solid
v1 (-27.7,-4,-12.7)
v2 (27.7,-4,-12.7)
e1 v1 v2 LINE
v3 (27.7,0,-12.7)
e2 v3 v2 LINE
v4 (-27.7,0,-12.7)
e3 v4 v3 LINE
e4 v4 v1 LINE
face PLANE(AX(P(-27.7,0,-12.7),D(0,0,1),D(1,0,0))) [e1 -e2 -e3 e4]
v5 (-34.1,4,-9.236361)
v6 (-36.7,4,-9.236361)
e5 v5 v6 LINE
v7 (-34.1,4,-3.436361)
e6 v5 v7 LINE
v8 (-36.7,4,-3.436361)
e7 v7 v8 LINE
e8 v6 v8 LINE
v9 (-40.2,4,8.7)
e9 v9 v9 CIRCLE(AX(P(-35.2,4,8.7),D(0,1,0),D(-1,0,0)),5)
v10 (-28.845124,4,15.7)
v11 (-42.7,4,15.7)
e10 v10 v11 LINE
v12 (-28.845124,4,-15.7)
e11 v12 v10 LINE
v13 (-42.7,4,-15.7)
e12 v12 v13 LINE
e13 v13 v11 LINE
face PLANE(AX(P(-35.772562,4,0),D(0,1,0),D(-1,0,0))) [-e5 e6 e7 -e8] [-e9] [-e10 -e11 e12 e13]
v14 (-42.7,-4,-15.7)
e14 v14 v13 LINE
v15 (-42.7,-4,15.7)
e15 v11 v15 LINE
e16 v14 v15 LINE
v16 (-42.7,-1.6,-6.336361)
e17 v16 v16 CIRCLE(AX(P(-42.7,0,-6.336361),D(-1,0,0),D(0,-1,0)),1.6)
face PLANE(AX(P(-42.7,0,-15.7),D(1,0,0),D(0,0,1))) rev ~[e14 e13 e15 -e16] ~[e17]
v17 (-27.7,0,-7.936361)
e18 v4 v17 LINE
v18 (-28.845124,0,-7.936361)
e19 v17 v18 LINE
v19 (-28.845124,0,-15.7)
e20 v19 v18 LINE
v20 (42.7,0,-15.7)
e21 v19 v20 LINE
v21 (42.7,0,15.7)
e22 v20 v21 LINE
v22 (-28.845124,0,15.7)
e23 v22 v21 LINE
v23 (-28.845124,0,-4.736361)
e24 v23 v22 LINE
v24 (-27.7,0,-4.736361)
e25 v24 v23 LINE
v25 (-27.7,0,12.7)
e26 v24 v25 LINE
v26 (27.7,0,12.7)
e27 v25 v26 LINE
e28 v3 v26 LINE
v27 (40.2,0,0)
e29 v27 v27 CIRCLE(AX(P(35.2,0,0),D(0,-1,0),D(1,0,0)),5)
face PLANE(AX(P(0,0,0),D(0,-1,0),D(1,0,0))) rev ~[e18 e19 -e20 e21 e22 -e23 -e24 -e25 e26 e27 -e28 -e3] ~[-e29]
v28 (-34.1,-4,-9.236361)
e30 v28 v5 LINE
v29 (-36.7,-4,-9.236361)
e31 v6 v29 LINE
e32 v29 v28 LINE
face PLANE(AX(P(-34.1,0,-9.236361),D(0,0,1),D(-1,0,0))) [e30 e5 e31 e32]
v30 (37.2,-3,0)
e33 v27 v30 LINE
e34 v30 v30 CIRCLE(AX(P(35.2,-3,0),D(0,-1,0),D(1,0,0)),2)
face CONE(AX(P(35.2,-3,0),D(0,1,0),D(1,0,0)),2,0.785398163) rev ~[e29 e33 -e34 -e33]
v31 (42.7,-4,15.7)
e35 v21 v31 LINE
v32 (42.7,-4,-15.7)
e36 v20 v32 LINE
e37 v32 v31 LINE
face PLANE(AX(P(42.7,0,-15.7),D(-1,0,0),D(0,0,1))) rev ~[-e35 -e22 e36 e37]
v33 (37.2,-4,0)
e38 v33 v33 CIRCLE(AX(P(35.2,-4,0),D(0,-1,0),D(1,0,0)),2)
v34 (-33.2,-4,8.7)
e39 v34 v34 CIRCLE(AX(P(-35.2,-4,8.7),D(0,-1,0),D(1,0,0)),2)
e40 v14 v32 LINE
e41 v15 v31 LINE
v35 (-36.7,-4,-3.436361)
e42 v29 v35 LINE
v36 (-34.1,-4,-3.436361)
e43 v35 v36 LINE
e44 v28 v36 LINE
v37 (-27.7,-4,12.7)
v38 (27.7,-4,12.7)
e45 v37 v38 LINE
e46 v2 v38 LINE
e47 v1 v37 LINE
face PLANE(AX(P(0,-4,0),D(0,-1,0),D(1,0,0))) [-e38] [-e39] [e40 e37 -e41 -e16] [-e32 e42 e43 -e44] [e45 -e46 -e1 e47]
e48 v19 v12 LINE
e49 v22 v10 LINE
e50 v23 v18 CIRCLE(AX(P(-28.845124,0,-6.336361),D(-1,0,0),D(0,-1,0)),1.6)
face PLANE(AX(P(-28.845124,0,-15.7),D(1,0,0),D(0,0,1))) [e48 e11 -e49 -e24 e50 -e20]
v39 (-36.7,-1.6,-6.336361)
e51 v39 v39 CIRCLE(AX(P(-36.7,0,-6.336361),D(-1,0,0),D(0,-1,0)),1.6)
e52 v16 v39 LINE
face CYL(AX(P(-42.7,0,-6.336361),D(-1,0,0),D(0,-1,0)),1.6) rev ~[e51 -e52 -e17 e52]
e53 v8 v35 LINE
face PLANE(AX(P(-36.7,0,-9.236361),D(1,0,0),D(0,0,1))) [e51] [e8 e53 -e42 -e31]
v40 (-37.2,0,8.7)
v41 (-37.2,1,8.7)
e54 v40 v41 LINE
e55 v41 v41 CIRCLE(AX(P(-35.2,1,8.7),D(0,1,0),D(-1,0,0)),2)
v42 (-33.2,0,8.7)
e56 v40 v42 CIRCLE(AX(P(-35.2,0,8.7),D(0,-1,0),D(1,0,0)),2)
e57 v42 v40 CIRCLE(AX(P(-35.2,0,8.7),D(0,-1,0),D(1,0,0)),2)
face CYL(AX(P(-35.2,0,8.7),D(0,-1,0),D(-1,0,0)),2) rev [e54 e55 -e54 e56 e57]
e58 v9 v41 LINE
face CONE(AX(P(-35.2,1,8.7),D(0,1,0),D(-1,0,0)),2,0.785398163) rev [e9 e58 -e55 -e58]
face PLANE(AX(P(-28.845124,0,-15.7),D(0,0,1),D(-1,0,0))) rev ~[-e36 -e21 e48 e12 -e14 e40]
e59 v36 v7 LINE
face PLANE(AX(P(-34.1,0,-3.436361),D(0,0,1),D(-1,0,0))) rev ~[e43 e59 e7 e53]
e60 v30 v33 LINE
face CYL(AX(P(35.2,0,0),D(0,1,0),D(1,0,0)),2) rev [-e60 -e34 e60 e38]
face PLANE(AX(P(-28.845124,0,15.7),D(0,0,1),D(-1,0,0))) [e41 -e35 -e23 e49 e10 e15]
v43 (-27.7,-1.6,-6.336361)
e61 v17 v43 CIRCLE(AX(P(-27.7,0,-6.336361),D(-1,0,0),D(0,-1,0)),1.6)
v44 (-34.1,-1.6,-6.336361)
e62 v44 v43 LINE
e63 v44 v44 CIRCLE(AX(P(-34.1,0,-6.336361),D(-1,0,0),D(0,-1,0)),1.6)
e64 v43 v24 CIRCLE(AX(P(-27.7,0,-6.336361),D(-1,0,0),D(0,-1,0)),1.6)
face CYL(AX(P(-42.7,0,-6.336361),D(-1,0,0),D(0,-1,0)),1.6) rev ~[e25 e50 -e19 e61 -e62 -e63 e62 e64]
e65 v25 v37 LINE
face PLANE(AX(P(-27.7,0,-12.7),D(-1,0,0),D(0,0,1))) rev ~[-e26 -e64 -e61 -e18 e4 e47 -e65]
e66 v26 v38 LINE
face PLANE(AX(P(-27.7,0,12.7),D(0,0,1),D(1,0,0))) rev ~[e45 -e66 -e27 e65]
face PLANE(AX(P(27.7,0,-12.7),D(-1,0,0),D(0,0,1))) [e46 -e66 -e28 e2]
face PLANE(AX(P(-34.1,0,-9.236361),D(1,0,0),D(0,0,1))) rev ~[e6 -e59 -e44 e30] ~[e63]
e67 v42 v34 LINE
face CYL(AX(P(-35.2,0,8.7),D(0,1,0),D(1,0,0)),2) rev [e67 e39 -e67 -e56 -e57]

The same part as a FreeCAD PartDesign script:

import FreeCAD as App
import Part
import Sketcher

V = App.Vector
Q = App.Units.Quantity


def edges_at(feature, points):
    """Names of the edges that pass closest to the given points."""
    edges = feature.Shape.Edges
    near = lambda p: min(range(len(edges)), key=lambda i: edges[i].distToShape(Part.Vertex(*p))[0])
    return sorted({f"Edge{near(p) + 1}" for p in points})

doc = App.newDocument("Part")
body = doc.addObject("PartDesign::Body", "Body")

sketch1 = body.newObject("Sketcher::SketchObject", "Sketch")
sketch1.AttachmentSupport = (doc.getObject("XZ_Plane"), [""])
sketch1.MapMode = "FlatFace"
sketch1.addGeometry(Part.LineSegment(V(-42.7, 15.7, 0), V(-42.7, -15.7, 0)), False)
sketch1.addGeometry(Part.LineSegment(V(-42.7, -15.7, 0), V(42.7, -15.7, 0)), False)
sketch1.addGeometry(Part.LineSegment(V(42.7, -15.7, 0), V(42.7, 15.7, 0)), False)
sketch1.addGeometry(Part.LineSegment(V(42.7, 15.7, 0), V(-42.7, 15.7, 0)), False)
sketch1.addGeometry(Part.LineSegment(V(-34.1, -9.2, 0), V(-36.7, -9.2, 0)), False)
sketch1.addGeometry(Part.LineSegment(V(-36.7, -9.2, 0), V(-36.7, -3.4, 0)), False)
sketch1.addGeometry(Part.LineSegment(V(-36.7, -3.4, 0), V(-34.1, -3.4, 0)), False)
sketch1.addGeometry(Part.LineSegment(V(-34.1, -3.4, 0), V(-34.1, -9.2, 0)), False)
sketch1.addGeometry(Part.LineSegment(V(27.7, -12.7, 0), V(-27.7, -12.7, 0)), False)
sketch1.addGeometry(Part.LineSegment(V(-27.7, -12.7, 0), V(-27.7, 12.7, 0)), False)
sketch1.addGeometry(Part.LineSegment(V(-27.7, 12.7, 0), V(27.7, 12.7, 0)), False)
sketch1.addGeometry(Part.LineSegment(V(27.7, 12.7, 0), V(27.7, -12.7, 0)), False)
sketch1.addGeometry(Part.Circle(V(35.2, 0, 0), V(0, 0, 1), 2), False)
sketch1.addGeometry(Part.Circle(V(-35.2, 8.7, 0), V(0, 0, 1), 2), False)
sketch1.addConstraint(Sketcher.Constraint("Coincident", 0, 2, 1, 1))
sketch1.addConstraint(Sketcher.Constraint("Coincident", 1, 2, 2, 1))
sketch1.addConstraint(Sketcher.Constraint("Coincident", 2, 2, 3, 1))
sketch1.addConstraint(Sketcher.Constraint("Coincident", 3, 2, 0, 1))
sketch1.addConstraint(Sketcher.Constraint("Coincident", 4, 2, 5, 1))
sketch1.addConstraint(Sketcher.Constraint("Coincident", 5, 2, 6, 1))
sketch1.addConstraint(Sketcher.Constraint("Coincident", 6, 2, 7, 1))
sketch1.addConstraint(Sketcher.Constraint("Coincident", 7, 2, 4, 1))
sketch1.addConstraint(Sketcher.Constraint("Coincident", 8, 2, 9, 1))
sketch1.addConstraint(Sketcher.Constraint("Coincident", 9, 2, 10, 1))
sketch1.addConstraint(Sketcher.Constraint("Coincident", 10, 2, 11, 1))
sketch1.addConstraint(Sketcher.Constraint("Coincident", 11, 2, 8, 1))
sketch1.addConstraint(Sketcher.Constraint("Vertical", 0))
sketch1.addConstraint(Sketcher.Constraint("Horizontal", 1))
sketch1.addConstraint(Sketcher.Constraint("Vertical", 2))
sketch1.addConstraint(Sketcher.Constraint("Horizontal", 3))
sketch1.addConstraint(Sketcher.Constraint("Horizontal", 4))
sketch1.addConstraint(Sketcher.Constraint("Vertical", 5))
sketch1.addConstraint(Sketcher.Constraint("Horizontal", 6))
sketch1.addConstraint(Sketcher.Constraint("Vertical", 7))
sketch1.addConstraint(Sketcher.Constraint("Horizontal", 8))
sketch1.addConstraint(Sketcher.Constraint("Vertical", 9))
sketch1.addConstraint(Sketcher.Constraint("Horizontal", 10))
sketch1.addConstraint(Sketcher.Constraint("Vertical", 11))
sketch1.addConstraint(Sketcher.Constraint("Equal", 12, 13))
sketch1.addConstraint(Sketcher.Constraint("Symmetric", 0, 2, 2, 2, -1, 1))
sketch1.addConstraint(Sketcher.Constraint("Symmetric", 8, 2, 10, 2, -1, 1))
sketch1.addConstraint(Sketcher.Constraint("PointOnObject", 12, 3, -1))
sketch1.addConstraint(Sketcher.Constraint("Diameter", 12, Q("4 mm")))
sketch1.addConstraint(Sketcher.Constraint("DistanceX", 1, 1, 1, 2, Q("85.4 mm")))
sketch1.addConstraint(Sketcher.Constraint("DistanceX", 4, 2, 4, 1, Q("2.6 mm")))
sketch1.addConstraint(Sketcher.Constraint("DistanceX", 8, 2, 8, 1, Q("55.4 mm")))
sketch1.addConstraint(Sketcher.Constraint("DistanceY", 0, 2, 0, 1, Q("31.4 mm")))
sketch1.addConstraint(Sketcher.Constraint("DistanceY", 5, 1, 5, 2, Q("5.8 mm")))
sketch1.addConstraint(Sketcher.Constraint("DistanceY", 9, 1, 9, 2, Q("25.4 mm")))
sketch1.addConstraint(Sketcher.Constraint("DistanceY", 13, 3, 2, 2, Q("7 mm")))
sketch1.addConstraint(Sketcher.Constraint("DistanceX", 0, 2, 4, 2, Q("6 mm")))
sketch1.addConstraint(Sketcher.Constraint("DistanceX", -1, 1, 12, 3, Q("35.2 mm")))
sketch1.addConstraint(Sketcher.Constraint("DistanceX", 13, 3, -1, 1, Q("35.2 mm")))
sketch1.addConstraint(Sketcher.Constraint("DistanceY", 4, 2, -1, 1, Q("9.236361 mm")))
pad1 = body.newObject("PartDesign::Pad", "Pad")
pad1.Profile = sketch1
pad1.Length = 4

sketch2 = body.newObject("Sketcher::SketchObject", "Sketch001")
sketch2.AttachmentSupport = (doc.getObject("XZ_Plane"), [""])
sketch2.MapMode = "FlatFace"
sketch2.addGeometry(Part.LineSegment(V(-28.8, 15.7, 0), V(-28.8, -15.7, 0)), False)
sketch2.addGeometry(Part.LineSegment(V(-28.8, -15.7, 0), V(-42.7, -15.7, 0)), False)
sketch2.addGeometry(Part.LineSegment(V(-42.7, -15.7, 0), V(-42.7, 15.7, 0)), False)
sketch2.addGeometry(Part.LineSegment(V(-42.7, 15.7, 0), V(-28.8, 15.7, 0)), False)
sketch2.addGeometry(Part.LineSegment(V(-36.7, -9.2, 0), V(-34.1, -9.2, 0)), False)
sketch2.addGeometry(Part.LineSegment(V(-34.1, -9.2, 0), V(-34.1, -3.4, 0)), False)
sketch2.addGeometry(Part.LineSegment(V(-34.1, -3.4, 0), V(-36.7, -3.4, 0)), False)
sketch2.addGeometry(Part.LineSegment(V(-36.7, -3.4, 0), V(-36.7, -9.2, 0)), False)
sketch2.addGeometry(Part.Circle(V(-35.2, 8.7, 0), V(0, 0, 1), 2), False)
sketch2.addConstraint(Sketcher.Constraint("Coincident", 0, 2, 1, 1))
sketch2.addConstraint(Sketcher.Constraint("Coincident", 1, 2, 2, 1))
sketch2.addConstraint(Sketcher.Constraint("Coincident", 2, 2, 3, 1))
sketch2.addConstraint(Sketcher.Constraint("Coincident", 3, 2, 0, 1))
sketch2.addConstraint(Sketcher.Constraint("Coincident", 4, 2, 5, 1))
sketch2.addConstraint(Sketcher.Constraint("Coincident", 5, 2, 6, 1))
sketch2.addConstraint(Sketcher.Constraint("Coincident", 6, 2, 7, 1))
sketch2.addConstraint(Sketcher.Constraint("Coincident", 7, 2, 4, 1))
sketch2.addConstraint(Sketcher.Constraint("Vertical", 0))
sketch2.addConstraint(Sketcher.Constraint("Horizontal", 1))
sketch2.addConstraint(Sketcher.Constraint("Vertical", 2))
sketch2.addConstraint(Sketcher.Constraint("Horizontal", 3))
sketch2.addConstraint(Sketcher.Constraint("Horizontal", 4))
sketch2.addConstraint(Sketcher.Constraint("Vertical", 5))
sketch2.addConstraint(Sketcher.Constraint("Horizontal", 6))
sketch2.addConstraint(Sketcher.Constraint("Vertical", 7))
sketch2.addConstraint(Sketcher.Constraint("Diameter", 8, Q("4 mm")))
sketch2.addConstraint(Sketcher.Constraint("DistanceX", 4, 1, 4, 2, Q("2.6 mm")))
sketch2.addConstraint(Sketcher.Constraint("DistanceY", 0, 2, 0, 1, Q("31.4 mm")))
sketch2.addConstraint(Sketcher.Constraint("DistanceY", 5, 1, 5, 2, Q("5.8 mm")))
sketch2.addConstraint(Sketcher.Constraint("DistanceY", 8, 3, 2, 2, Q("7 mm")))
sketch2.addConstraint(Sketcher.Constraint("DistanceX", 1, 2, 6, 2, Q("6 mm")))
sketch2.addConstraint(Sketcher.Constraint("DistanceX", 8, 3, -1, 1, Q("35.2 mm")))
sketch2.addConstraint(Sketcher.Constraint("DistanceY", -1, 1, 8, 3, Q("8.7 mm")))
sketch2.addConstraint(Sketcher.Constraint("DistanceX", 1, 2, -1, 1, Q("42.7 mm")))
sketch2.addConstraint(Sketcher.Constraint("DistanceX", 1, 2, 1, 1, Q("13.854876 mm")))
sketch2.addConstraint(Sketcher.Constraint("DistanceY", 4, 2, -1, 1, Q("9.236361 mm")))
pad2 = body.newObject("PartDesign::Pad", "Pad001")
pad2.Profile = sketch2
pad2.Length = 4
pad2.Reversed = True

sketch3 = body.newObject("Sketcher::SketchObject", "Sketch002")
sketch3.AttachmentSupport = (doc.getObject("YZ_Plane"), [""])
sketch3.MapMode = "FlatFace"
sketch3.AttachmentOffset = App.Placement(V(0, 0, -42.7), App.Rotation())
sketch3.addGeometry(Part.Circle(V(0, -6.3, 0), V(0, 0, 1), 1.6), False)
sketch3.addConstraint(Sketcher.Constraint("PointOnObject", 0, 3, -2))
sketch3.addConstraint(Sketcher.Constraint("Diameter", 0, Q("3.2 mm")))
sketch3.addConstraint(Sketcher.Constraint("DistanceY", 0, 3, -1, 1, Q("6.336361 mm")))
pocket1 = body.newObject("PartDesign::Pocket", "Pocket")
pocket1.Profile = sketch3
pocket1.Length = 25
pocket1.Reversed = True
doc.recompute()

chamfer = body.newObject("PartDesign::Chamfer", "Chamfer")
chamfer.Base = (pocket1, edges_at(pocket1, [(-33.2, 4, 8.7), (33.2, 0, 0)]))
chamfer.Size = 3

doc.recompute()
